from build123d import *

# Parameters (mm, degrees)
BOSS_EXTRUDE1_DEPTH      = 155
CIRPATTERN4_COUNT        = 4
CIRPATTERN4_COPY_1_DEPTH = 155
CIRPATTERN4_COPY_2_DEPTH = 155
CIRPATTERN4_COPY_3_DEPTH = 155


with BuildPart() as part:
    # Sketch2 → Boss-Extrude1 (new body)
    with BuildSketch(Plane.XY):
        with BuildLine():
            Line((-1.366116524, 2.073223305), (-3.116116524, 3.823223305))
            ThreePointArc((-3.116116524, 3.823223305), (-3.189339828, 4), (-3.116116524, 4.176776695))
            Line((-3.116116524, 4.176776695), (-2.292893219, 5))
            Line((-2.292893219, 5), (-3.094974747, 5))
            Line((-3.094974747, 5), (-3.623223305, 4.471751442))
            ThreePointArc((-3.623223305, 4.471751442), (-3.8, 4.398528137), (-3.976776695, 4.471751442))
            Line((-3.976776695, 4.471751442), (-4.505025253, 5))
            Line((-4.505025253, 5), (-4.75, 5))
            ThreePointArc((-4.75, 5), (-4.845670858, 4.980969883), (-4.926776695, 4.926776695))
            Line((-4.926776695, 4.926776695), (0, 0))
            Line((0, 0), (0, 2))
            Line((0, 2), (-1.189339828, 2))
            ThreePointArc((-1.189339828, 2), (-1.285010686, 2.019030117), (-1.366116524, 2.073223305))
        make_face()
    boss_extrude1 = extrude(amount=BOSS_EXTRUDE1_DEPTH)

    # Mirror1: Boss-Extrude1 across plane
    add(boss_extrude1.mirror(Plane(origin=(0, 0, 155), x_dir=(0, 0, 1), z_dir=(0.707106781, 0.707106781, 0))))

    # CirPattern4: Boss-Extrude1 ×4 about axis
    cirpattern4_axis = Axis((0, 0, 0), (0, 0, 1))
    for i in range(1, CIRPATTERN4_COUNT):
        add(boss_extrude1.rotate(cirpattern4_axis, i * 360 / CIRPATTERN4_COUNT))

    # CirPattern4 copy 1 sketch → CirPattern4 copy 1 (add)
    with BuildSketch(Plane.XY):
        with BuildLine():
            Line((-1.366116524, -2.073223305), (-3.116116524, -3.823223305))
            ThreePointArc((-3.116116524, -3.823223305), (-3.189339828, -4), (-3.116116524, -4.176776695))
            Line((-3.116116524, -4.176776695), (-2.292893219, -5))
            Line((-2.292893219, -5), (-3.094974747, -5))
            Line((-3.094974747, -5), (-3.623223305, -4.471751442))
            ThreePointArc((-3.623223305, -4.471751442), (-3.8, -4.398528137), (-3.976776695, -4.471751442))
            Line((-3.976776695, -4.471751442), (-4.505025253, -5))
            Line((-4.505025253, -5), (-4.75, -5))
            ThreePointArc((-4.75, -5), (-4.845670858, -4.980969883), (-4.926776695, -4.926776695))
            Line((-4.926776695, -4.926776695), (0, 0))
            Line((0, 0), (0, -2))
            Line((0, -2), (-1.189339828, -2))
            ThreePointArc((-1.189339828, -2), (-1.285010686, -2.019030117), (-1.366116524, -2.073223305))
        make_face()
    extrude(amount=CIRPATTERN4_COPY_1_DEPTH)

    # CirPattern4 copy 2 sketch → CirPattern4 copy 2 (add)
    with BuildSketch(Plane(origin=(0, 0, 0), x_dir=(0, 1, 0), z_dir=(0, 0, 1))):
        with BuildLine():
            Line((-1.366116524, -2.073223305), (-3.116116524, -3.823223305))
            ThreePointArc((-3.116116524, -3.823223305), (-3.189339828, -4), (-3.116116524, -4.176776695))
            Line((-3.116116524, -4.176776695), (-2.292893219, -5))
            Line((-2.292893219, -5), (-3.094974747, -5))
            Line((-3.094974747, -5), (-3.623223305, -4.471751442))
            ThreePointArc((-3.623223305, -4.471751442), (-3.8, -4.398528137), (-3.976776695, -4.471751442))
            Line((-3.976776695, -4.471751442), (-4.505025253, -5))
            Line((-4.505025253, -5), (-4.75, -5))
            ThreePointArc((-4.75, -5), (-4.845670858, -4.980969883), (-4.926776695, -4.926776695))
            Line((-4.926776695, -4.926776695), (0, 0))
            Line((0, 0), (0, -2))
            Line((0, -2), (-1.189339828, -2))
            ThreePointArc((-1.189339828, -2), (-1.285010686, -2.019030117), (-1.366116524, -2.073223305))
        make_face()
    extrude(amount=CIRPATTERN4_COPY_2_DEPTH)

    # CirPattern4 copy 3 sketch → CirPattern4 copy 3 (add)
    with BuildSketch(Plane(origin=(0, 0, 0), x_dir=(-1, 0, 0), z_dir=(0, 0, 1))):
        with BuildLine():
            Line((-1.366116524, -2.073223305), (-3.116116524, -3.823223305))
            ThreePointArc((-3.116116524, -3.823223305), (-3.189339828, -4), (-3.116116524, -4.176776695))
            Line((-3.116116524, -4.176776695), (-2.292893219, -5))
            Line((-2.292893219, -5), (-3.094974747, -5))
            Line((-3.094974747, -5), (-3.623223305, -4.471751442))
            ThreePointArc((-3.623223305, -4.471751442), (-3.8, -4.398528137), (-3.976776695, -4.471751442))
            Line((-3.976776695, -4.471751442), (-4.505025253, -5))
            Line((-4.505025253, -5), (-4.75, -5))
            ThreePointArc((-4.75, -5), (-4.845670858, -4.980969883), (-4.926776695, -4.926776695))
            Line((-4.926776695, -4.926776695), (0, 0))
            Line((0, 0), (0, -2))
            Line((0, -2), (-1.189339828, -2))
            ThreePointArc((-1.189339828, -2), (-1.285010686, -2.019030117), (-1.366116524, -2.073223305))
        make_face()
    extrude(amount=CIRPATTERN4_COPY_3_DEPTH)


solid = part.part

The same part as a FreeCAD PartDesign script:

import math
import FreeCAD as App
import Part
import Sketcher
from FreeCAD import Vector
Q = App.Units.Quantity

doc = App.newDocument("Part")
params = doc.addObject("Spreadsheet::Sheet", "Params")
for row, (alias, value) in enumerate([
    ("sketch1_height", "2 mm"),
    ("sketch1_radius", "0.25 mm"),
    ("pad1_length", "155 mm"),
    ("sketch2_height", "2 mm"),
    ("sketch2_radius", "0.25 mm"),
    ("pad2_length", "155 mm"),
    ("sketch3_width", "2 mm"),
    ("sketch3_radius", "0.25 mm"),
    ("pad3_length", "155 mm"),
    ("sketch4_height", "2 mm"),
    ("sketch4_radius", "0.25 mm"),
    ("pad4_length", "155 mm"),
], start=1):
    params.set(f"A{row}", alias)
    params.set(f"B{row}", "=" + value)
    params.setAlias(f"B{row}", alias)

body = doc.addObject("PartDesign::Body", "Body")
body.AllowCompound = True

# Sketch on XY plane
sketch1 = body.newObject("Sketcher::SketchObject", "Sketch")
sketch1.AttachmentSupport = (doc.getObject("XY_Plane"), [""])
sketch1.MapMode = "FlatFace"
sketch1.addGeometry(Part.LineSegment(Vector(-1.37, 2.07, 0), Vector(-3.12, 3.82, 0)), False)
sketch1.addGeometry(Part.ArcOfCircle(Part.Circle(Vector(-2.94, 4, 0), Vector(0, 0, 1), 0.25), math.radians(135), math.radians(225)), False)
sketch1.addGeometry(Part.LineSegment(Vector(-3.12, 4.18, 0), Vector(-2.29, 5, 0)), False)
sketch1.addGeometry(Part.LineSegment(Vector(-2.29, 5, 0), Vector(-3.09, 5, 0)), False)
sketch1.addGeometry(Part.LineSegment(Vector(-3.09, 5, 0), Vector(-3.62, 4.47, 0)), False)
sketch1.addGeometry(Part.ArcOfCircle(Part.Circle(Vector(-3.8, 4.65, 0), Vector(0, 0, 1), 0.25), math.radians(-135), math.radians(-45)), False)
sketch1.addGeometry(Part.LineSegment(Vector(-3.98, 4.47, 0), Vector(-4.51, 5, 0)), False)
sketch1.addGeometry(Part.LineSegment(Vector(-4.51, 5, 0), Vector(-4.75, 5, 0)), False)
sketch1.addGeometry(Part.ArcOfCircle(Part.Circle(Vector(-4.75, 4.75, 0), Vector(0, 0, 1), 0.25), math.radians(90), math.radians(135)), False)
sketch1.addGeometry(Part.LineSegment(Vector(-4.93, 4.93, 0), Vector(0, 0, 0)), False)
sketch1.addGeometry(Part.LineSegment(Vector(0, 0, 0), Vector(0, 2, 0)), False)
sketch1.addGeometry(Part.LineSegment(Vector(0, 2, 0), Vector(-1.19, 2, 0)), False)
sketch1.addGeometry(Part.ArcOfCircle(Part.Circle(Vector(-1.19, 2.25, 0), Vector(0, 0, 1), 0.25), math.radians(-135), math.radians(-90)), False)
sketch1.addConstraint(Sketcher.Constraint("Tangent", 0, 2, 1, 2))
sketch1.addConstraint(Sketcher.Constraint("Tangent", 1, 1, 2, 1))
sketch1.addConstraint(Sketcher.Constraint("Coincident", 2, 2, 3, 1))
sketch1.addConstraint(Sketcher.Constraint("Coincident", 3, 2, 4, 1))
sketch1.addConstraint(Sketcher.Constraint("Tangent", 4, 2, 5, 2))
sketch1.addConstraint(Sketcher.Constraint("Tangent", 5, 1, 6, 1))
sketch1.addConstraint(Sketcher.Constraint("Coincident", 6, 2, 7, 1))
sketch1.addConstraint(Sketcher.Constraint("Tangent", 7, 2, 8, 1))
sketch1.addConstraint(Sketcher.Constraint("Coincident", 8, 2, 9, 1))
sketch1.addConstraint(Sketcher.Constraint("Coincident", 9, 2, 10, 1))
sketch1.addConstraint(Sketcher.Constraint("Coincident", 10, 2, 11, 1))
sketch1.addConstraint(Sketcher.Constraint("Tangent", 11, 2, 12, 2))
sketch1.addConstraint(Sketcher.Constraint("Tangent", 12, 1, 0, 1))
sketch1.addConstraint(Sketcher.Constraint("Horizontal", 3))
sketch1.addConstraint(Sketcher.Constraint("Horizontal", 7))
sketch1.addConstraint(Sketcher.Constraint("Vertical", 10))
sketch1.addConstraint(Sketcher.Constraint("Horizontal", 11))
sketch1.addConstraint(Sketcher.Constraint("Coincident", 9, 2, -1, 1))
sketch1.addConstraint(Sketcher.Constraint("Equal", 1, 5))
sketch1.addConstraint(Sketcher.Constraint("Equal", 5, 8))
sketch1.addConstraint(Sketcher.Constraint("Equal", 8, 12))
sketch1.addConstraint(Sketcher.Constraint("Perpendicular", 0, 2))
sketch1.addConstraint(Sketcher.Constraint("Parallel", 2, 4))
sketch1.addConstraint(Sketcher.Constraint("Perpendicular", 4, 6))
sketch1.addConstraint(Sketcher.Constraint("Parallel", 6, 9))
sketch1.addConstraint(Sketcher.Constraint("Horizontal", 4, 2, 5, 1))
sketch1.addConstraint(Sketcher.Constraint("Horizontal", 3, 2, 6, 2))
sketch1.addConstraint(Sketcher.Constraint("DistanceY", 10, 1, 10, 2, Q("2 mm")))
sketch1.addConstraint(Sketcher.Constraint("Radius", 1, Q("0.25 mm")))
sketch1.addConstraint(Sketcher.Constraint("DistanceY", -1, 1, 1, 3, Q("4 mm")))
sketch1.addConstraint(Sketcher.Constraint("DistanceY", -1, 1, 2, 2, Q("5 mm")))
sketch1.addConstraint(Sketcher.Constraint("DistanceX", 5, 3, -1, 1, Q("3.8 mm")))
sketch1.addConstraint(Sketcher.Constraint("DistanceX", 8, 3, -1, 1, Q("4.75 mm")))
sketch1.addConstraint(Sketcher.Constraint("DistanceX", 3, 2, 3, 1, Q("0.802082 mm")))
sketch1.addConstraint(Sketcher.Constraint("DistanceX", 11, 2, 11, 1, Q("1.18934 mm")))
sketch1.setExpression("Constraints[27]", "Params.sketch1_height")
sketch1.setExpression("Constraints[28]", "Params.sketch1_radius")
pad1 = body.newObject("PartDesign::Pad", "Pad")
pad1.Profile = sketch1
pad1.setExpression("Length", "Params.pad1_length")
doc.recompute()

datumplane = body.newObject("PartDesign::Plane", "DatumPlane")
datumplane.Placement = App.Placement(Vector(0, 0, 0), App.Rotation(Vector(0.707106781, -0.707106781, 0), Vector(0, 0, -1), Vector(0.707106781, 0.707106781, 0), "ZXY"))
mirrored = body.newObject("PartDesign::Mirrored", "Mirrored")
mirrored.Originals = [pad1]
mirrored.MirrorPlane = (datumplane, [""])
body.Tip = mirrored
doc.recompute()

polarpattern = body.newObject("PartDesign::PolarPattern", "PolarPattern")
polarpattern.Originals = [pad1]
polarpattern.Axis = (doc.getObject("Z_Axis"), [""])
polarpattern.Angle = 360
polarpattern.Occurrences = 4
body.Tip = polarpattern

# Sketch on XY plane
sketch2 = body.newObject("Sketcher::SketchObject", "Sketch001")
sketch2.AttachmentSupport = (doc.getObject("XY_Plane"), [""])
sketch2.MapMode = "FlatFace"
sketch2.addGeometry(Part.LineSegment(Vector(-3.12, -3.82, 0), Vector(-1.37, -2.07, 0)), False)
sketch2.addGeometry(Part.ArcOfCircle(Part.Circle(Vector(-1.19, -2.25, 0), Vector(0, 0, 1), 0.25), math.radians(90), math.radians(135)), False)
sketch2.addGeometry(Part.LineSegment(Vector(-1.19, -2, 0), Vector(0, -2, 0)), False)
sketch2.addGeometry(Part.LineSegment(Vector(0, -2, 0), Vector(0, 0, 0)), False)
sketch2.addGeometry(Part.LineSegment(Vector(0, 0, 0), Vector(-4.93, -4.93, 0)), False)
sketch2.addGeometry(Part.ArcOfCircle(Part.Circle(Vector(-4.75, -4.75, 0), Vector(0, 0, 1), 0.25), math.radians(-135), math.radians(-90)), False)
sketch2.addGeometry(Part.LineSegment(Vector(-4.75, -5, 0), Vector(-4.51, -5, 0)), False)
sketch2.addGeometry(Part.LineSegment(Vector(-4.51, -5, 0), Vector(-3.98, -4.47, 0)), False)
sketch2.addGeometry(Part.ArcOfCircle(Part.Circle(Vector(-3.8, -4.65, 0), Vector(0, 0, 1), 0.25), math.radians(45), math.radians(135)), False)
sketch2.addGeometry(Part.LineSegment(Vector(-3.62, -4.47, 0), Vector(-3.09, -5, 0)), False)
sketch2.addGeometry(Part.LineSegment(Vector(-3.09, -5, 0), Vector(-2.29, -5, 0)), False)
sketch2.addGeometry(Part.LineSegment(Vector(-2.29, -5, 0), Vector(-3.12, -4.18, 0)), False)
sketch2.addGeometry(Part.ArcOfCircle(Part.Circle(Vector(-2.94, -4, 0), Vector(0, 0, 1), 0.25), math.radians(135), math.radians(225)), False)
sketch2.addConstraint(Sketcher.Constraint("Tangent", 0, 2, 1, 2))
sketch2.addConstraint(Sketcher.Constraint("Tangent", 1, 1, 2, 1))
sketch2.addConstraint(Sketcher.Constraint("Coincident", 2, 2, 3, 1))
sketch2.addConstraint(Sketcher.Constraint("Coincident", 3, 2, 4, 1))
sketch2.addConstraint(Sketcher.Constraint("Coincident", 4, 2, 5, 1))
sketch2.addConstraint(Sketcher.Constraint("Tangent", 5, 2, 6, 1))
sketch2.addConstraint(Sketcher.Constraint("Coincident", 6, 2, 7, 1))
sketch2.addConstraint(Sketcher.Constraint("Tangent", 7, 2, 8, 2))
sketch2.addConstraint(Sketcher.Constraint("Tangent", 8, 1, 9, 1))
sketch2.addConstraint(Sketcher.Constraint("Coincident", 9, 2, 10, 1))
sketch2.addConstraint(Sketcher.Constraint("Coincident", 10, 2, 11, 1))
sketch2.addConstraint(Sketcher.Constraint("Tangent", 11, 2, 12, 2))
sketch2.addConstraint(Sketcher.Constraint("Tangent", 12, 1, 0, 1))
sketch2.addConstraint(Sketcher.Constraint("Horizontal", 2))
sketch2.addConstraint(Sketcher.Constraint("Vertical", 3))
sketch2.addConstraint(Sketcher.Constraint("Horizontal", 6))
sketch2.addConstraint(Sketcher.Constraint("Horizontal", 10))
sketch2.addConstraint(Sketcher.Constraint("Coincident", 3, 2, -1, 1))
sketch2.addConstraint(Sketcher.Constraint("Equal", 1, 5))
sketch2.addConstraint(Sketcher.Constraint("Equal", 5, 8))
sketch2.addConstraint(Sketcher.Constraint("Equal", 8, 12))
sketch2.addConstraint(Sketcher.Constraint("Parallel", 0, 4))
sketch2.addConstraint(Sketcher.Constraint("Parallel", 4, 7))
sketch2.addConstraint(Sketcher.Constraint("Perpendicular", 7, 9))
sketch2.addConstraint(Sketcher.Constraint("Parallel", 9, 11))
sketch2.addConstraint(Sketcher.Constraint("Horizontal", 7, 2, 8, 1))
sketch2.addConstraint(Sketcher.Constraint("Horizontal", 6, 2, 9, 2))
sketch2.addConstraint(Sketcher.Constraint("DistanceY", 3, 1, 3, 2, Q("2 mm")))
sketch2.addConstraint(Sketcher.Constraint("Radius", 1, Q("0.25 mm")))
sketch2.addConstraint(Sketcher.Constraint("DistanceY", 12, 3, -1, 1, Q("4 mm")))
sketch2.addConstraint(Sketcher.Constraint("DistanceY", 5, 2, -1, 1, Q("5 mm")))
sketch2.addConstraint(Sketcher.Constraint("DistanceX", 8, 3, -1, 1, Q("3.8 mm")))
sketch2.addConstraint(Sketcher.Constraint("DistanceX", 5, 3, -1, 1, Q("4.75 mm")))
sketch2.addConstraint(Sketcher.Constraint("DistanceX", 2, 1, 2, 2, Q("1.18934 mm")))
sketch2.addConstraint(Sketcher.Constraint("DistanceX", 10, 1, 10, 2, Q("0.802082 mm")))
sketch2.setExpression("Constraints[27]", "Params.sketch2_height")
sketch2.setExpression("Constraints[28]", "Params.sketch2_radius")
pad2 = body.newObject("PartDesign::Pad", "Pad001")
pad2.Profile = sketch2
pad2.setExpression("Length", "Params.pad2_length")

# Sketch on XY plane
sketch3 = body.newObject("Sketcher::SketchObject", "Sketch002")
sketch3.AttachmentSupport = (doc.getObject("XY_Plane"), [""])
sketch3.MapMode = "FlatFace"
sketch3.addGeometry(Part.LineSegment(Vector(3.82, -3.12, 0), Vector(2.07, -1.37, 0)), False)
sketch3.addGeometry(Part.ArcOfCircle(Part.Circle(Vector(2.25, -1.19, 0), Vector(0, 0, 1), 0.25), math.radians(-180), math.radians(-135)), False)
sketch3.addGeometry(Part.LineSegment(Vector(2, -1.19, 0), Vector(2, 0, 0)), False)
sketch3.addGeometry(Part.LineSegment(Vector(2, 0, 0), Vector(0, 0, 0)), False)
sketch3.addGeometry(Part.LineSegment(Vector(0, 0, 0), Vector(4.93, -4.93, 0)), False)
sketch3.addGeometry(Part.ArcOfCircle(Part.Circle(Vector(4.75, -4.75, 0), Vector(0, 0, 1), 0.25), math.radians(-45), math.radians(0)), False)
sketch3.addGeometry(Part.LineSegment(Vector(5, -4.75, 0), Vector(5, -4.51, 0)), False)
sketch3.addGeometry(Part.LineSegment(Vector(5, -4.51, 0), Vector(4.47, -3.98, 0)), False)
sketch3.addGeometry(Part.ArcOfCircle(Part.Circle(Vector(4.65, -3.8, 0), Vector(0, 0, 1), 0.25), math.radians(135), math.radians(225)), False)
sketch3.addGeometry(Part.LineSegment(Vector(4.47, -3.62, 0), Vector(5, -3.09, 0)), False)
sketch3.addGeometry(Part.LineSegment(Vector(5, -3.09, 0), Vector(5, -2.29, 0)), False)
sketch3.addGeometry(Part.LineSegment(Vector(5, -2.29, 0), Vector(4.18, -3.12, 0)), False)
sketch3.addGeometry(Part.ArcOfCircle(Part.Circle(Vector(4, -2.94, 0), Vector(0, 0, 1), 0.25), math.radians(-135), math.radians(-45)), False)
sketch3.addConstraint(Sketcher.Constraint("Tangent", 0, 2, 1, 2))
sketch3.addConstraint(Sketcher.Constraint("Tangent", 1, 1, 2, 1))
sketch3.addConstraint(Sketcher.Constraint("Coincident", 2, 2, 3, 1))
sketch3.addConstraint(Sketcher.Constraint("Coincident", 3, 2, 4, 1))
sketch3.addConstraint(Sketcher.Constraint("Coincident", 4, 2, 5, 1))
sketch3.addConstraint(Sketcher.Constraint("Tangent", 5, 2, 6, 1))
sketch3.addConstraint(Sketcher.Constraint("Coincident", 6, 2, 7, 1))
sketch3.addConstraint(Sketcher.Constraint("Tangent", 7, 2, 8, 2))
sketch3.addConstraint(Sketcher.Constraint("Tangent", 8, 1, 9, 1))
sketch3.addConstraint(Sketcher.Constraint("Coincident", 9, 2, 10, 1))
sketch3.addConstraint(Sketcher.Constraint("Coincident", 10, 2, 11, 1))
sketch3.addConstraint(Sketcher.Constraint("Tangent", 11, 2, 12, 2))
sketch3.addConstraint(Sketcher.Constraint("Tangent", 12, 1, 0, 1))
sketch3.addConstraint(Sketcher.Constraint("Vertical", 2))
sketch3.addConstraint(Sketcher.Constraint("Horizontal", 3))
sketch3.addConstraint(Sketcher.Constraint("Vertical", 6))
sketch3.addConstraint(Sketcher.Constraint("Vertical", 10))
sketch3.addConstraint(Sketcher.Constraint("Coincident", 3, 2, -1, 1))
sketch3.addConstraint(Sketcher.Constraint("Equal", 1, 5))
sketch3.addConstraint(Sketcher.Constraint("Equal", 5, 8))
sketch3.addConstraint(Sketcher.Constraint("Equal", 8, 12))
sketch3.addConstraint(Sketcher.Constraint("Parallel", 0, 4))
sketch3.addConstraint(Sketcher.Constraint("Parallel", 4, 7))
sketch3.addConstraint(Sketcher.Constraint("Perpendicular", 7, 9))
sketch3.addConstraint(Sketcher.Constraint("Parallel", 9, 11))
sketch3.addConstraint(Sketcher.Constraint("Horizontal", 11, 2, 12, 1))
sketch3.addConstraint(Sketcher.Constraint("Vertical", 6, 2, 9, 2))
sketch3.addConstraint(Sketcher.Constraint("DistanceX", 3, 2, 3, 1, Q("2 mm")))
sketch3.addConstraint(Sketcher.Constraint("Radius", 1, Q("0.25 mm")))
sketch3.addConstraint(Sketcher.Constraint("DistanceX", -1, 1, 12, 3, Q("4 mm")))
sketch3.addConstraint(Sketcher.Constraint("DistanceX", -1, 1, 5, 2, Q("5 mm")))
sketch3.addConstraint(Sketcher.Constraint("DistanceY", 8, 3, -1, 1, Q("3.8 mm")))
sketch3.addConstraint(Sketcher.Constraint("DistanceY", 5, 3, -1, 1, Q("4.75 mm")))
sketch3.addConstraint(Sketcher.Constraint("DistanceY", 2, 1, 2, 2, Q("1.18934 mm")))
sketch3.addConstraint(Sketcher.Constraint("DistanceY", 10, 1, 10, 2, Q("0.802082 mm")))
sketch3.setExpression("Constraints[27]", "Params.sketch3_width")
sketch3.setExpression("Constraints[28]", "Params.sketch3_radius")
pad3 = body.newObject("PartDesign::Pad", "Pad002")
pad3.Profile = sketch3
pad3.setExpression("Length", "Params.pad3_length")

# Sketch on XY plane
sketch4 = body.newObject("Sketcher::SketchObject", "Sketch003")
sketch4.AttachmentSupport = (doc.getObject("XY_Plane"), [""])
sketch4.MapMode = "FlatFace"
sketch4.addGeometry(Part.LineSegment(Vector(3.12, 3.82, 0), Vector(1.37, 2.07, 0)), False)
sketch4.addGeometry(Part.ArcOfCircle(Part.Circle(Vector(1.19, 2.25, 0), Vector(0, 0, 1), 0.25), math.radians(-90), math.radians(-45)), False)
sketch4.addGeometry(Part.LineSegment(Vector(1.19, 2, 0), Vector(0, 2, 0)), False)
sketch4.addGeometry(Part.LineSegment(Vector(0, 2, 0), Vector(0, 0, 0)), False)
sketch4.addGeometry(Part.LineSegment(Vector(0, 0, 0), Vector(4.93, 4.93, 0)), False)
sketch4.addGeometry(Part.ArcOfCircle(Part.Circle(Vector(4.75, 4.75, 0), Vector(0, 0, 1), 0.25), math.radians(45), math.radians(90)), False)
sketch4.addGeometry(Part.LineSegment(Vector(4.75, 5, 0), Vector(4.51, 5, 0)), False)
sketch4.addGeometry(Part.LineSegment(Vector(4.51, 5, 0), Vector(3.98, 4.47, 0)), False)
sketch4.addGeometry(Part.ArcOfCircle(Part.Circle(Vector(3.8, 4.65, 0), Vector(0, 0, 1), 0.25), math.radians(-135), math.radians(-45)), False)
sketch4.addGeometry(Part.LineSegment(Vector(3.62, 4.47, 0), Vector(3.09, 5, 0)), False)
sketch4.addGeometry(Part.LineSegment(Vector(3.09, 5, 0), Vector(2.29, 5, 0)), False)
sketch4.addGeometry(Part.LineSegment(Vector(2.29, 5, 0), Vector(3.12, 4.18, 0)), False)
sketch4.addGeometry(Part.ArcOfCircle(Part.Circle(Vector(2.94, 4, 0), Vector(0, 0, 1), 0.25), math.radians(-45), math.radians(45)), False)
sketch4.addConstraint(Sketcher.Constraint("Tangent", 0, 2, 1, 2))
sketch4.addConstraint(Sketcher.Constraint("Tangent", 1, 1, 2, 1))
sketch4.addConstraint(Sketcher.Constraint("Coincident", 2, 2, 3, 1))
sketch4.addConstraint(Sketcher.Constraint("Coincident", 3, 2, 4, 1))
sketch4.addConstraint(Sketcher.Constraint("Coincident", 4, 2, 5, 1))
sketch4.addConstraint(Sketcher.Constraint("Tangent", 5, 2, 6, 1))
sketch4.addConstraint(Sketcher.Constraint("Coincident", 6, 2, 7, 1))
sketch4.addConstraint(Sketcher.Constraint("Tangent", 7, 2, 8, 2))
sketch4.addConstraint(Sketcher.Constraint("Tangent", 8, 1, 9, 1))
sketch4.addConstraint(Sketcher.Constraint("Coincident", 9, 2, 10, 1))
sketch4.addConstraint(Sketcher.Constraint("Coincident", 10, 2, 11, 1))
sketch4.addConstraint(Sketcher.Constraint("Tangent", 11, 2, 12, 2))
sketch4.addConstraint(Sketcher.Constraint("Tangent", 12, 1, 0, 1))
sketch4.addConstraint(Sketcher.Constraint("Horizontal", 2))
sketch4.addConstraint(Sketcher.Constraint("Vertical", 3))
sketch4.addConstraint(Sketcher.Constraint("Horizontal", 6))
sketch4.addConstraint(Sketcher.Constraint("Horizontal", 10))
sketch4.addConstraint(Sketcher.Constraint("Coincident", 3, 2, -1, 1))
sketch4.addConstraint(Sketcher.Constraint("Equal", 1, 5))
sketch4.addConstraint(Sketcher.Constraint("Equal", 5, 8))
sketch4.addConstraint(Sketcher.Constraint("Equal", 8, 12))
sketch4.addConstraint(Sketcher.Constraint("Parallel", 0, 4))
sketch4.addConstraint(Sketcher.Constraint("Parallel", 4, 7))
sketch4.addConstraint(Sketcher.Constraint("Perpendicular", 7, 9))
sketch4.addConstraint(Sketcher.Constraint("Parallel", 9, 11))
sketch4.addConstraint(Sketcher.Constraint("Horizontal", 7, 2, 8, 1))
sketch4.addConstraint(Sketcher.Constraint("Horizontal", 6, 2, 9, 2))
sketch4.addConstraint(Sketcher.Constraint("DistanceY", 3, 2, 3, 1, Q("2 mm")))
sketch4.addConstraint(Sketcher.Constraint("Radius", 1, Q("0.25 mm")))
sketch4.addConstraint(Sketcher.Constraint("DistanceY", -1, 1, 12, 3, Q("4 mm")))
sketch4.addConstraint(Sketcher.Constraint("DistanceY", -1, 1, 5, 2, Q("5 mm")))
sketch4.addConstraint(Sketcher.Constraint("DistanceX", -1, 1, 8, 3, Q("3.8 mm")))
sketch4.addConstraint(Sketcher.Constraint("DistanceX", -1, 1, 5, 3, Q("4.75 mm")))
sketch4.addConstraint(Sketcher.Constraint("DistanceX", 2, 2, 2, 1, Q("1.18934 mm")))
sketch4.addConstraint(Sketcher.Constraint("DistanceX", 10, 2, 10, 1, Q("0.802082 mm")))
sketch4.setExpression("Constraints[27]", "Params.sketch4_height")
sketch4.setExpression("Constraints[28]", "Params.sketch4_radius")
pad4 = body.newObject("PartDesign::Pad", "Pad003")
pad4.Profile = sketch4
pad4.setExpression("Length", "Params.pad4_length")

doc.recompute()
